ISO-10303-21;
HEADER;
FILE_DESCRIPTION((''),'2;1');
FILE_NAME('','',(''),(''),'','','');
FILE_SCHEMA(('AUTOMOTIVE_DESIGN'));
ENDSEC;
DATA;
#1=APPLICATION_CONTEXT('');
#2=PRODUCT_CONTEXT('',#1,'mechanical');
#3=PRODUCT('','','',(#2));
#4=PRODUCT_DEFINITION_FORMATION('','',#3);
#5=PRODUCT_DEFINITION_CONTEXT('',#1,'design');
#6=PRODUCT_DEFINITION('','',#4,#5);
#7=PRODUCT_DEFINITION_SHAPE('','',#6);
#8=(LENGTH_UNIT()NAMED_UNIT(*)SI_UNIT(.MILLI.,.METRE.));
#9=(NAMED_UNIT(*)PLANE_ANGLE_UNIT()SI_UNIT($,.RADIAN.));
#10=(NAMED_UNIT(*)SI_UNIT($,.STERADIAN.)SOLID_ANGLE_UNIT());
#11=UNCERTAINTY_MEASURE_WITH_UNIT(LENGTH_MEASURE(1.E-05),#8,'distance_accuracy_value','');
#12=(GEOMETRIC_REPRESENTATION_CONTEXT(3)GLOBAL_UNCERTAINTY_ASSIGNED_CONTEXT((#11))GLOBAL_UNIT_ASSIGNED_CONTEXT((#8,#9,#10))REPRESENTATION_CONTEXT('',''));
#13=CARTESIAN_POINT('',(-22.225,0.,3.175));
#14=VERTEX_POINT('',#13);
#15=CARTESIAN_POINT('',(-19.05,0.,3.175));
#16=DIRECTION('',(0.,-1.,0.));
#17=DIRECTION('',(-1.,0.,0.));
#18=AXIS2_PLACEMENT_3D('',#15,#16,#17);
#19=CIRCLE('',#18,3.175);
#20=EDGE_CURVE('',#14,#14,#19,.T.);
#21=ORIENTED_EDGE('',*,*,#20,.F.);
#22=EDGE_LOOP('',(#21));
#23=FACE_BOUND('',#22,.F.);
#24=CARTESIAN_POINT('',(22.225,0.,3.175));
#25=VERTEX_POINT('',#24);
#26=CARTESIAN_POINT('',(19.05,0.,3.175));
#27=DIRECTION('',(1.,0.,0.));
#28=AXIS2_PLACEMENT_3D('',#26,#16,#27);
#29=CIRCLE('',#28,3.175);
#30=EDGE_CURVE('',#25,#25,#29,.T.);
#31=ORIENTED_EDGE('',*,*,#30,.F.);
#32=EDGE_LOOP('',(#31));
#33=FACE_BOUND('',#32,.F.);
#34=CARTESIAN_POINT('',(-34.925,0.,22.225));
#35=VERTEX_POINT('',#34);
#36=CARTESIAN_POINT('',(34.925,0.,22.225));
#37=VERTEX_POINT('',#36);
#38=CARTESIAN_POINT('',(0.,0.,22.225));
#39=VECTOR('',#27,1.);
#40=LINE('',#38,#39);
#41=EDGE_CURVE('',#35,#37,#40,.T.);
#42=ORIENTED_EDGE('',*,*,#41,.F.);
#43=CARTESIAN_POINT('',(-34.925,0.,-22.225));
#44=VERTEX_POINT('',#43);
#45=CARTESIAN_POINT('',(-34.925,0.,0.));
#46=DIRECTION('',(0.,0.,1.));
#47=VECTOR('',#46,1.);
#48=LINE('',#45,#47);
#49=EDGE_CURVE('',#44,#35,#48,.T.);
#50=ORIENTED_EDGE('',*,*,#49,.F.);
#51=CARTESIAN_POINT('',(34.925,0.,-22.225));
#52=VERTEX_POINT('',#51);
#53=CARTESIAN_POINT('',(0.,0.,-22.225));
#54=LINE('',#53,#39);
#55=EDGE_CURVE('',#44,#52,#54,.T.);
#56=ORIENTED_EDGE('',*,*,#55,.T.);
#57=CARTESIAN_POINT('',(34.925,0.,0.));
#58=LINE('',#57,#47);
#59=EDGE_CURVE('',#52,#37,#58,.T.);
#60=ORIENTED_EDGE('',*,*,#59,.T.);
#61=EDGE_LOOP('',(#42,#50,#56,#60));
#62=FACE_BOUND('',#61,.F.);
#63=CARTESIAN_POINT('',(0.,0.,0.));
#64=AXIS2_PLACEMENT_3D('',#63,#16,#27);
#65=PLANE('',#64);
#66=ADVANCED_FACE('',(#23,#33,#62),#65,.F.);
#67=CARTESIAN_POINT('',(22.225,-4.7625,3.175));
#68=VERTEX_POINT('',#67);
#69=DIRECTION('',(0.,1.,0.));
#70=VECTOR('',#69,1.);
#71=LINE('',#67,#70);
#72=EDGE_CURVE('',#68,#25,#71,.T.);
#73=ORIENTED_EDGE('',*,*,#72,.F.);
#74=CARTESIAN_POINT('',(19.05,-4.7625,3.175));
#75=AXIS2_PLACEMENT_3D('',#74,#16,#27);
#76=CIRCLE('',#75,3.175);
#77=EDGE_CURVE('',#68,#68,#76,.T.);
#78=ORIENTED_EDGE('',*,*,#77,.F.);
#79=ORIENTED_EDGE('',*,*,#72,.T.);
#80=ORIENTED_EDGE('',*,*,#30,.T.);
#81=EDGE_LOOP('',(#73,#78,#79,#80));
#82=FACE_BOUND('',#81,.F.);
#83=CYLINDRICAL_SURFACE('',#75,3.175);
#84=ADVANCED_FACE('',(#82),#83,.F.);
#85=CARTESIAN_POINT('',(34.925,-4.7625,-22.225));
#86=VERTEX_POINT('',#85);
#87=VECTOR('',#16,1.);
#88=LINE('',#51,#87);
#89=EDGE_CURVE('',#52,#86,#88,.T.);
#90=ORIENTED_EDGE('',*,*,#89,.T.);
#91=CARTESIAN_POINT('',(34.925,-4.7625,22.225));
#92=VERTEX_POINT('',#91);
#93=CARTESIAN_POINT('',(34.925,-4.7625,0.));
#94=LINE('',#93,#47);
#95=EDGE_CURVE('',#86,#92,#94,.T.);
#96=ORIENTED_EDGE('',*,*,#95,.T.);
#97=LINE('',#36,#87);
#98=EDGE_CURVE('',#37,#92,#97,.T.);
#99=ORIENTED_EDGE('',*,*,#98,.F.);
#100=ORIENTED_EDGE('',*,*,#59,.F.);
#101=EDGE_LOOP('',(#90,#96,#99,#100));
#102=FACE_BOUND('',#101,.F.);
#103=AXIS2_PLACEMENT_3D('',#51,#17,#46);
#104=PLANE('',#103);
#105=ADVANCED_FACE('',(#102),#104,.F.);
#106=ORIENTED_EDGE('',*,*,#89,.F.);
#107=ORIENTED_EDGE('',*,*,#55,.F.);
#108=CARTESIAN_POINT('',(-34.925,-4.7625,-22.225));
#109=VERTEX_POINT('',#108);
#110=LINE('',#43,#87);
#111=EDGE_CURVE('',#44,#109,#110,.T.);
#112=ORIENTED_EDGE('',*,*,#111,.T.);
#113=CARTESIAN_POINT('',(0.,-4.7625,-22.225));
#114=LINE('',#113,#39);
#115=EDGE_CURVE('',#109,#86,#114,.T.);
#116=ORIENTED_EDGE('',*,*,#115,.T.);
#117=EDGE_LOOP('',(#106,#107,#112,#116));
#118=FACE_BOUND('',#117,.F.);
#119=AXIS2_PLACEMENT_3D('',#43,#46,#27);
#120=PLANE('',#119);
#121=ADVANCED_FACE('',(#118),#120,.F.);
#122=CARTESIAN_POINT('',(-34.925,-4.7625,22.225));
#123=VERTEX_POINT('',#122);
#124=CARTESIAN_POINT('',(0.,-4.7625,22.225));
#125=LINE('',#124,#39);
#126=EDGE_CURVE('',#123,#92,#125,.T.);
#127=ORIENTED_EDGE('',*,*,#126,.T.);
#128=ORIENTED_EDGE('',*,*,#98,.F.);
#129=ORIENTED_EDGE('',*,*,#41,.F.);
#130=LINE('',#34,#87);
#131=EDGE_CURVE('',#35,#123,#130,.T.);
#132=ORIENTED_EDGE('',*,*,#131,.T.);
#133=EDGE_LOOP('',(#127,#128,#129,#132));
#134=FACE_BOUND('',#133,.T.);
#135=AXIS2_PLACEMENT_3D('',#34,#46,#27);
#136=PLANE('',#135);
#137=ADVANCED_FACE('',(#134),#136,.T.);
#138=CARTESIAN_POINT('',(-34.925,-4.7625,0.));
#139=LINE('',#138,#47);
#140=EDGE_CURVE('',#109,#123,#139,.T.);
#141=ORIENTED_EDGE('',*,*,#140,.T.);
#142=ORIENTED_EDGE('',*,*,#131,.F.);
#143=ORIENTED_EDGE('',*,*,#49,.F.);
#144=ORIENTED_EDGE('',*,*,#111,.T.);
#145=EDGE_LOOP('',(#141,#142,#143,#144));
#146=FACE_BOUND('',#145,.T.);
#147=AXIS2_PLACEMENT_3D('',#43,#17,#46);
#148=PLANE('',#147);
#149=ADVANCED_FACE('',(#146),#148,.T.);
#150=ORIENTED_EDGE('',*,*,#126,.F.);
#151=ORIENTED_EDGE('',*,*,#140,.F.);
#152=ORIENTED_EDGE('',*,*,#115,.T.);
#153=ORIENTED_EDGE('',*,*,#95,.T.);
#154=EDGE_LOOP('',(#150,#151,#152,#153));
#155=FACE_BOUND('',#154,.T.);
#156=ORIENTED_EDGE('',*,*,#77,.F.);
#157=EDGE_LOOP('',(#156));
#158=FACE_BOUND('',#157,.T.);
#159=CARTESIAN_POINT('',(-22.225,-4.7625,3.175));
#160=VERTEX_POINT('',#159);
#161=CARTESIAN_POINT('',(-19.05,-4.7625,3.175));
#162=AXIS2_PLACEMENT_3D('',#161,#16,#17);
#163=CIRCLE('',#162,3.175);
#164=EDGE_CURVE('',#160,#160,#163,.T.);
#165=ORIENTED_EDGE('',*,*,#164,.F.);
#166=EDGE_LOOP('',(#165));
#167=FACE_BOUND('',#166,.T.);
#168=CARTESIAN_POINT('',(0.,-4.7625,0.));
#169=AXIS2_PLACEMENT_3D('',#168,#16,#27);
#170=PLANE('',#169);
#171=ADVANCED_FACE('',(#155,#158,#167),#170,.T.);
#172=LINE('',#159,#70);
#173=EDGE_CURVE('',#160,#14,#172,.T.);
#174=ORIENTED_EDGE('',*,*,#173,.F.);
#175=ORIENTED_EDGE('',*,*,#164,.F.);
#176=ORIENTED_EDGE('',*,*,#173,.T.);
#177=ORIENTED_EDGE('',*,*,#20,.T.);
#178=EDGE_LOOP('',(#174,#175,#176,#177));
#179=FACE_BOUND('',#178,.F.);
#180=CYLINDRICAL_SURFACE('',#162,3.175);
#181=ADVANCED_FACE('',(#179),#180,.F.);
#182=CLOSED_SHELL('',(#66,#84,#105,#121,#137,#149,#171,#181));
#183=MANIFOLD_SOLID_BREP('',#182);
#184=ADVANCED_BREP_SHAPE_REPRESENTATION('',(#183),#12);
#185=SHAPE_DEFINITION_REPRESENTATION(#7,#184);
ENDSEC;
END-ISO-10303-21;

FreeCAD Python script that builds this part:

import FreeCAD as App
import Part
import Sketcher
from FreeCAD import Vector
Q = App.Units.Quantity

doc = App.newDocument("Part")
body = doc.addObject("PartDesign::Body", "Body")

sketch1 = doc.addObject("Sketcher::SketchObject", "Sketch")
body.addObject(sketch1)
sketch1.AttachmentSupport = (doc.XZ_Plane, [""])
sketch1.MapMode = "FlatFace"
sketch1.addGeometry(Part.LineSegment(Vector(-35, 22, 0), Vector(-35, -22, 0)), False)
sketch1.addGeometry(Part.LineSegment(Vector(-35, -22, 0), Vector(35, -22, 0)), False)
sketch1.addGeometry(Part.LineSegment(Vector(35, -22, 0), Vector(35, 22, 0)), False)
sketch1.addGeometry(Part.LineSegment(Vector(35, 22, 0), Vector(-35, 22, 0)), False)
sketch1.addConstraint(Sketcher.Constraint("Coincident", 0, 2, 1, 1))
sketch1.addConstraint(Sketcher.Constraint("Coincident", 1, 2, 2, 1))
sketch1.addConstraint(Sketcher.Constraint("Coincident", 2, 2, 3, 1))
sketch1.addConstraint(Sketcher.Constraint("Coincident", 3, 2, 0, 1))
sketch1.addConstraint(Sketcher.Constraint("Vertical", 0))
sketch1.addConstraint(Sketcher.Constraint("Horizontal", 1))
sketch1.addConstraint(Sketcher.Constraint("Vertical", 2))
sketch1.addConstraint(Sketcher.Constraint("Horizontal", 3))
sketch1.addConstraint(Sketcher.Constraint("Symmetric", 0, 2, 2, 2, -1, 1))
sketch1.addConstraint(Sketcher.Constraint("DistanceX", 1, 1, 1, 2, Q("2.75 in")))
sketch1.addConstraint(Sketcher.Constraint("DistanceY", 0, 2, 0, 1, Q("1.75 in")))
pad1 = doc.addObject("PartDesign::Pad", "Pad")
body.addObject(pad1)
pad1.Profile = sketch1
pad1.Length = Q("0.1875 in")

sketch2 = doc.addObject("Sketcher::SketchObject", "Sketch001")
body.addObject(sketch2)
sketch2.AttachmentSupport = (doc.XZ_Plane, [""])
sketch2.MapMode = "FlatFace"
sketch2.AttachmentOffset = App.Placement(Vector(0, 0, 0.1875 * 25.4), App.Rotation())
sketch2.addGeometry(Part.Circle(Vector(-19.1, 3.2, 0), Vector(0, 0, 1), 3.2), False)
sketch2.addGeometry(Part.Circle(Vector(19.1, 3.2, 0), Vector(0, 0, 1), 3.2), False)
sketch2.addConstraint(Sketcher.Constraint("Equal", 0, 1))
sketch2.addConstraint(Sketcher.Constraint("Symmetric", 0, 3, 1, 3, -2))
sketch2.addConstraint(Sketcher.Constraint("Diameter", 0, Q("0.25 in")))
sketch2.addConstraint(Sketcher.Constraint("DistanceX", 0, 3, 1, 3, Q("1.5 in")))
sketch2.addConstraint(Sketcher.Constraint("DistanceY", -1, 1, 0, 3, Q("0.125 in")))
pocket1 = doc.addObject("PartDesign::Pocket", "Pocket")
body.addObject(pocket1)
pocket1.Profile = sketch2
pocket1.Length = Q("1 in")

doc.recompute()
